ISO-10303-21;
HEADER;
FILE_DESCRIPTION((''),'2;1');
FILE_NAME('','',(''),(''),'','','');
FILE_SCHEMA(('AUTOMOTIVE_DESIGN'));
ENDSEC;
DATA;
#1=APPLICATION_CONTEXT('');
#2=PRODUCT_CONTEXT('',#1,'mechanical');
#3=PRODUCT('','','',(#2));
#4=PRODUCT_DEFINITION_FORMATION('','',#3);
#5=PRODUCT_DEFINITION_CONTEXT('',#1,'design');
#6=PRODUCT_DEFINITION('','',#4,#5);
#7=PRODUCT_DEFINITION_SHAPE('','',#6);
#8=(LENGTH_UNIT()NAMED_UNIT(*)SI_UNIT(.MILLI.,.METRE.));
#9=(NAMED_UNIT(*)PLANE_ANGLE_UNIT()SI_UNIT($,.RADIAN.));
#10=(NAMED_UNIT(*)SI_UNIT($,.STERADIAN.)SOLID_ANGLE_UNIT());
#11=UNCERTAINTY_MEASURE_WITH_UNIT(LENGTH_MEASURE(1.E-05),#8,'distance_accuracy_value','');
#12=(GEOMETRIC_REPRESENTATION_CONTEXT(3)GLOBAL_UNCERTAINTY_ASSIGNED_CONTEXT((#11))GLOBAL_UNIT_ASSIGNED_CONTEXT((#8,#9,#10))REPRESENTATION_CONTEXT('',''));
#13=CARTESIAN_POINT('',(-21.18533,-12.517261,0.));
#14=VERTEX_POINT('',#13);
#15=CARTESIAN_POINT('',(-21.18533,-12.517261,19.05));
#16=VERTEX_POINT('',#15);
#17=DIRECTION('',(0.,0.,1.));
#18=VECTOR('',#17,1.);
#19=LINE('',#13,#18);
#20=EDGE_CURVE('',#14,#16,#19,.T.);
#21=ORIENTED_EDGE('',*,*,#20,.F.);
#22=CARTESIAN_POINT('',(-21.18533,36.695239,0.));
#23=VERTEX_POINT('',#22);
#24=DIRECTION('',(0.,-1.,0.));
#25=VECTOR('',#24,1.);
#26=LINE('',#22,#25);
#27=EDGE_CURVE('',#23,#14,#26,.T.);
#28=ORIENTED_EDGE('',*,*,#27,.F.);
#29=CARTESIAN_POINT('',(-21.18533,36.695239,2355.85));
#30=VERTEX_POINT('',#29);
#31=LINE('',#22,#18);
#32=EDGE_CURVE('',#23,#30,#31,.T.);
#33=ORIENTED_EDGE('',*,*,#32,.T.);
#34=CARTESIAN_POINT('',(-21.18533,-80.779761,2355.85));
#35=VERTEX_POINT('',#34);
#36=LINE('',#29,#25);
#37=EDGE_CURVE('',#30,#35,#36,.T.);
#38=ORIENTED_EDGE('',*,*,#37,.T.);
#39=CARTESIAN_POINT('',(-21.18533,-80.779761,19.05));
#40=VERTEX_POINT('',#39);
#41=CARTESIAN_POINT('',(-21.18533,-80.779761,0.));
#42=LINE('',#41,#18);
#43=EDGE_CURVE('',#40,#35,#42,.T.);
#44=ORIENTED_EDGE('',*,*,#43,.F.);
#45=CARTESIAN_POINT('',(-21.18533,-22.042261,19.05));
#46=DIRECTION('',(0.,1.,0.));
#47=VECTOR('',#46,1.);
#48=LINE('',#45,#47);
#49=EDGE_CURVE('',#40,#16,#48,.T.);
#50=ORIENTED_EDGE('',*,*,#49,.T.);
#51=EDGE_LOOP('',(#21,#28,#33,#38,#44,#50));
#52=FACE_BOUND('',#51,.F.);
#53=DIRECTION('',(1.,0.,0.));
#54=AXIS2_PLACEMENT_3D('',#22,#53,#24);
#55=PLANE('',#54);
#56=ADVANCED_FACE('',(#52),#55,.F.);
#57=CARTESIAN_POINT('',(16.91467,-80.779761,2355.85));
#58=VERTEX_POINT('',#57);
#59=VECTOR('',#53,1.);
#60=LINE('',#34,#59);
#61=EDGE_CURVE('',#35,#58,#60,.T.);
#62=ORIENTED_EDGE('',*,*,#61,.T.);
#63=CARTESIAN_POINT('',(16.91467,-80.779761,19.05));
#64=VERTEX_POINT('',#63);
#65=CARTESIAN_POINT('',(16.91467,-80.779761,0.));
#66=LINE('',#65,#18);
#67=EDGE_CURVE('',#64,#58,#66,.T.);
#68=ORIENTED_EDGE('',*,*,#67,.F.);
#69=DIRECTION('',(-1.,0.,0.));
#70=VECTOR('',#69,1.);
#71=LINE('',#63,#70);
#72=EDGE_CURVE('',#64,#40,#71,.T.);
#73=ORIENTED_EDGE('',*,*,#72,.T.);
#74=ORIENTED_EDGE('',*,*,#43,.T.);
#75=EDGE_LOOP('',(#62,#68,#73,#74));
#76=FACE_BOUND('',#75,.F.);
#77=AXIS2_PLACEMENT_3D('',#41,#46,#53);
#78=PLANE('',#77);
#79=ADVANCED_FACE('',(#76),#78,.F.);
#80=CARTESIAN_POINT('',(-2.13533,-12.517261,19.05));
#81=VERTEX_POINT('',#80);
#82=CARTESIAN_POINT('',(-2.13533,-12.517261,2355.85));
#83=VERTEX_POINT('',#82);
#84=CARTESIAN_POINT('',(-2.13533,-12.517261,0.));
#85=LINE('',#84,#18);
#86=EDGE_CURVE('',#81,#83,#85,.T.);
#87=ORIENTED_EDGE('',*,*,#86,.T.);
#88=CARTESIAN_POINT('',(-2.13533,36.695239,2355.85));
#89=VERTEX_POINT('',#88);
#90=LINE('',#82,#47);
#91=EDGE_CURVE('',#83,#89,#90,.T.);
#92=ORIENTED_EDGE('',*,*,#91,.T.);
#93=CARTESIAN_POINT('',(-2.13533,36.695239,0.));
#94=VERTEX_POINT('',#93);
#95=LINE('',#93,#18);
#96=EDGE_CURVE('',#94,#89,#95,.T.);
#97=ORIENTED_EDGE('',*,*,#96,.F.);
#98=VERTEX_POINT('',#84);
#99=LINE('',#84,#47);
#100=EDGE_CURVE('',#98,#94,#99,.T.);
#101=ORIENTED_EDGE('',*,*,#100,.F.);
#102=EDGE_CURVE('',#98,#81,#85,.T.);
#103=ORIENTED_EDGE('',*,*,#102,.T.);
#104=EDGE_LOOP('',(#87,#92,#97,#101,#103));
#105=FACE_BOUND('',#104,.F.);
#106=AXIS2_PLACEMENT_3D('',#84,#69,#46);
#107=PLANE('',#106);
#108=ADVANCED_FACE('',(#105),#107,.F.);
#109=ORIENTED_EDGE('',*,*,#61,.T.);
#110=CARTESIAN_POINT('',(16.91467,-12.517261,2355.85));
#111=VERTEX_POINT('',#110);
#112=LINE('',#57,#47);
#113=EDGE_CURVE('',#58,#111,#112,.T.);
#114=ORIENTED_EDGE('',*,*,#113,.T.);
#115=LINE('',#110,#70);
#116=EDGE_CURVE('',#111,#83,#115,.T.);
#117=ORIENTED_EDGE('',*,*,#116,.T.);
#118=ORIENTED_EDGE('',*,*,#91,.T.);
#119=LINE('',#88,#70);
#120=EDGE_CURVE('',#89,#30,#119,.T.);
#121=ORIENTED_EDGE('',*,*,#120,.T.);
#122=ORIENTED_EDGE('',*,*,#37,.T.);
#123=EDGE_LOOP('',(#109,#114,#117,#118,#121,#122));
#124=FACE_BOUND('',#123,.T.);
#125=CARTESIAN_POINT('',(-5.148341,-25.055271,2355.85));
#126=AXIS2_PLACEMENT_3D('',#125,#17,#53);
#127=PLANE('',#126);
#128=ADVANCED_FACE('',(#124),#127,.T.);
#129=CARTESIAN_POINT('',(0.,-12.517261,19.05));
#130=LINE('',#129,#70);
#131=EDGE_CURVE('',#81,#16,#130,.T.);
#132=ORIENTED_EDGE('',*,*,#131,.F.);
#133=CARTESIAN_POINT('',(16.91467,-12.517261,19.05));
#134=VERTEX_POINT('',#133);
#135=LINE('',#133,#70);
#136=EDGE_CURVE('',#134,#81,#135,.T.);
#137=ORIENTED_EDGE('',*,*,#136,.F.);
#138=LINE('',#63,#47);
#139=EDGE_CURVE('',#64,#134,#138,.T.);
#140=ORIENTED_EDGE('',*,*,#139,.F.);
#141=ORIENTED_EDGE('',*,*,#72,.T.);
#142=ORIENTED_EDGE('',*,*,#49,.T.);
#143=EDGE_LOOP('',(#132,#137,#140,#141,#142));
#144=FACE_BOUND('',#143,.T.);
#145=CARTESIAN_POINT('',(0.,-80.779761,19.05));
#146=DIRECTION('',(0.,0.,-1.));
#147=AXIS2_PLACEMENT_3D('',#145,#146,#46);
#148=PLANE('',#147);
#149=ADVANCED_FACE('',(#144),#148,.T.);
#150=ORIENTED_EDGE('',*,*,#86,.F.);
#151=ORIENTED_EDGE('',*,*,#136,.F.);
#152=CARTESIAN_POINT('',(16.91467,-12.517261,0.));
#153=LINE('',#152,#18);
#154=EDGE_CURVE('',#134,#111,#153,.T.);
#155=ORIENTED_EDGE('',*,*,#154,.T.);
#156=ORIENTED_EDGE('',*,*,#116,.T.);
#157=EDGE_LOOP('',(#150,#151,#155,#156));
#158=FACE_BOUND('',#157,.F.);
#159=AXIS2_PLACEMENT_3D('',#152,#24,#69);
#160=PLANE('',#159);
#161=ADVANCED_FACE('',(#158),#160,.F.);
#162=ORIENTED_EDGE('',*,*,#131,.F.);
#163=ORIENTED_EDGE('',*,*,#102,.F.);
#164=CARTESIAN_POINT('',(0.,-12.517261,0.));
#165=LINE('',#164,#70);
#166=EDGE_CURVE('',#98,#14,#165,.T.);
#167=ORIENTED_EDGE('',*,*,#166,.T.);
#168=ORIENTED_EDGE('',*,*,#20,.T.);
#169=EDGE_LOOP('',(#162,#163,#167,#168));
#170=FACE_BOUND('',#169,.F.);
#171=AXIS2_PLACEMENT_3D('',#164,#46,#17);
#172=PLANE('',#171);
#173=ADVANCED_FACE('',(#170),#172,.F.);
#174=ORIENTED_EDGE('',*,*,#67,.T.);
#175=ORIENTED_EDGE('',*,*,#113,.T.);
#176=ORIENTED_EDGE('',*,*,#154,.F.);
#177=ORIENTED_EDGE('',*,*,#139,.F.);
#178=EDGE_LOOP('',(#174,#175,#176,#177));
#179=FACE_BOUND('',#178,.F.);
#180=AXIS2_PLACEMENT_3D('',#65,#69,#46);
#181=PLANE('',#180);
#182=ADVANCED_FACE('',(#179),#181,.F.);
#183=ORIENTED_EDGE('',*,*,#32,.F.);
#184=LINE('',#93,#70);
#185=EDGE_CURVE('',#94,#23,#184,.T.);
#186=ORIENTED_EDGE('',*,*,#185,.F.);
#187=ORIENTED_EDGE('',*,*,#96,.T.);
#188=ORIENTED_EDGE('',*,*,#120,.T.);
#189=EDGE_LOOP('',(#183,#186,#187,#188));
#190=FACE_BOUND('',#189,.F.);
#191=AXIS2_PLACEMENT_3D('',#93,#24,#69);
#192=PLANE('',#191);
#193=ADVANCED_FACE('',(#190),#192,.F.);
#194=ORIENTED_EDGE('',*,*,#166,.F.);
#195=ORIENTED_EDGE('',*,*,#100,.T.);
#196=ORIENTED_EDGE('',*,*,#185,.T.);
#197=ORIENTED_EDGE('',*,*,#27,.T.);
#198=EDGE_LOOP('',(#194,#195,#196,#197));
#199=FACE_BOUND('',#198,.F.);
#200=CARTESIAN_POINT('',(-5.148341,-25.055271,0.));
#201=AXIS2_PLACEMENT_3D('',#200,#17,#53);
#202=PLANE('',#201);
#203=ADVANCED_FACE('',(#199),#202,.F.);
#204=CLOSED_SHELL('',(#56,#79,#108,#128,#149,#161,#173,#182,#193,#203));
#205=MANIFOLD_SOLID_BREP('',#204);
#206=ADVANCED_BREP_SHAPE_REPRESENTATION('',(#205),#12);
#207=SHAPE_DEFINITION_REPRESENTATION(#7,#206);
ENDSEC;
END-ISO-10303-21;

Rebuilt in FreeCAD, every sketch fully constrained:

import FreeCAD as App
import Part
import Sketcher

V = App.Vector
Q = App.Units.Quantity

doc = App.newDocument("Part")
body = doc.addObject("PartDesign::Body", "Body")

sketch1 = doc.addObject("Sketcher::SketchObject", "Sketch")
body.addObject(sketch1)
sketch1.AttachmentSupport = (doc.XY_Plane, [""])
sketch1.MapMode = "FlatFace"
sketch1.addGeometry(Part.LineSegment(V(-2, -13, 0), V(-2, 37, 0)), False)
sketch1.addGeometry(Part.LineSegment(V(-2, 37, 0), V(-21, 37, 0)), False)
sketch1.addGeometry(Part.LineSegment(V(-21, 37, 0), V(-21, -81, 0)), False)
sketch1.addGeometry(Part.LineSegment(V(-21, -81, 0), V(17, -81, 0)), False)
sketch1.addGeometry(Part.LineSegment(V(17, -81, 0), V(17, -13, 0)), False)
sketch1.addGeometry(Part.LineSegment(V(17, -13, 0), V(-2, -13, 0)), False)
sketch1.addConstraint(Sketcher.Constraint("Coincident", 0, 2, 1, 1))
sketch1.addConstraint(Sketcher.Constraint("Coincident", 1, 2, 2, 1))
sketch1.addConstraint(Sketcher.Constraint("Coincident", 2, 2, 3, 1))
sketch1.addConstraint(Sketcher.Constraint("Coincident", 3, 2, 4, 1))
sketch1.addConstraint(Sketcher.Constraint("Coincident", 4, 2, 5, 1))
sketch1.addConstraint(Sketcher.Constraint("Coincident", 5, 2, 0, 1))
sketch1.addConstraint(Sketcher.Constraint("Vertical", 0))
sketch1.addConstraint(Sketcher.Constraint("Horizontal", 1))
sketch1.addConstraint(Sketcher.Constraint("Vertical", 2))
sketch1.addConstraint(Sketcher.Constraint("Horizontal", 3))
sketch1.addConstraint(Sketcher.Constraint("Vertical", 4))
sketch1.addConstraint(Sketcher.Constraint("Horizontal", 5))
sketch1.addConstraint(Sketcher.Constraint("Equal", 1, 5))
sketch1.addConstraint(Sketcher.Constraint("DistanceX", 3, 1, 3, 2, Q("1.5 in")))
sketch1.addConstraint(Sketcher.Constraint("DistanceY", 0, 1, 0, 2, Q("1.9375 in")))
sketch1.addConstraint(Sketcher.Constraint("DistanceY", 2, 2, 2, 1, Q("4.625 in")))
sketch1.addConstraint(Sketcher.Constraint("DistanceX", 0, 2, -1, 1, 2.13533))
sketch1.addConstraint(Sketcher.Constraint("DistanceY", -1, 1, 0, 2, 36.695239))
pad1 = doc.addObject("PartDesign::Pad", "Pad")
body.addObject(pad1)
pad1.Profile = sketch1
pad1.Length = Q("92.75 in")

sketch2 = doc.addObject("Sketcher::SketchObject", "Sketch001")
body.addObject(sketch2)
sketch2.AttachmentSupport = (doc.YZ_Plane, [""])
sketch2.MapMode = "FlatFace"
sketch2.addGeometry(Part.LineSegment(V(-81, 19, 0), V(-81, 0, 0)), False)
sketch2.addGeometry(Part.LineSegment(V(-81, 0, 0), V(-13, 0, 0)), False)
sketch2.addGeometry(Part.LineSegment(V(-13, 0, 0), V(-13, 19, 0)), False)
sketch2.addGeometry(Part.LineSegment(V(-13, 19, 0), V(-81, 19, 0)), False)
sketch2.addConstraint(Sketcher.Constraint("Coincident", 0, 2, 1, 1))
sketch2.addConstraint(Sketcher.Constraint("Coincident", 1, 2, 2, 1))
sketch2.addConstraint(Sketcher.Constraint("Coincident", 2, 2, 3, 1))
sketch2.addConstraint(Sketcher.Constraint("Coincident", 3, 2, 0, 1))
sketch2.addConstraint(Sketcher.Constraint("Vertical", 0))
sketch2.addConstraint(Sketcher.Constraint("Horizontal", 1))
sketch2.addConstraint(Sketcher.Constraint("Vertical", 2))
sketch2.addConstraint(Sketcher.Constraint("Horizontal", 3))
sketch2.addConstraint(Sketcher.Constraint("PointOnObject", 0, 2, -1))
sketch2.addConstraint(Sketcher.Constraint("DistanceY", 0, 2, 0, 1, Q("0.75 in")))
sketch2.addConstraint(Sketcher.Constraint("DistanceX", 1, 1, 1, 2, Q("2.6875 in")))
sketch2.addConstraint(Sketcher.Constraint("DistanceX", 0, 2, -1, 1, 80.779761))
pocket1 = doc.addObject("PartDesign::Pocket", "Pocket")
body.addObject(pocket1)
pocket1.Profile = sketch2
pocket1.Type = "ThroughAll"
pocket1.Midplane = True

doc.recompute()
